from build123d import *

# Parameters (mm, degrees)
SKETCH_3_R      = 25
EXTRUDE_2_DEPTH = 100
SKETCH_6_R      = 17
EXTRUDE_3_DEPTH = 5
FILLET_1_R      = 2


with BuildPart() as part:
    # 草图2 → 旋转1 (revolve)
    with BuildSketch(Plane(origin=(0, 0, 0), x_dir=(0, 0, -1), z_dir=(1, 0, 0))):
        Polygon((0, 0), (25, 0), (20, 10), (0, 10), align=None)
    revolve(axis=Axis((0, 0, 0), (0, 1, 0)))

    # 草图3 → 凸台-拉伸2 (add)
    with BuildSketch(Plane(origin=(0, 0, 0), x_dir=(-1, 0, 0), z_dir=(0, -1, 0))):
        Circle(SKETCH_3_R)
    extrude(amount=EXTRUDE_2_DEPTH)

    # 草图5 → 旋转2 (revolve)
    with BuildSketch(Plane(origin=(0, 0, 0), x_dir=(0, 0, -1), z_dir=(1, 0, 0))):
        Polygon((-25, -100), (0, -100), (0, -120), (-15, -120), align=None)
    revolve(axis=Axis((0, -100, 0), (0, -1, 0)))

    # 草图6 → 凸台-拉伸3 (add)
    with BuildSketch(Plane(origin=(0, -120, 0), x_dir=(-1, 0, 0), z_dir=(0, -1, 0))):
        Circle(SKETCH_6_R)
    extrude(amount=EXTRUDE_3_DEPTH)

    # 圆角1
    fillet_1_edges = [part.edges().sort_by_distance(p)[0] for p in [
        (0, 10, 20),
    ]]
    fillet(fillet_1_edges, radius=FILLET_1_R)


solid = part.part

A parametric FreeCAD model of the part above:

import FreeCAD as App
import Part
import Sketcher
from FreeCAD import Vector
Q = App.Units.Quantity


def edges_at(feature, points):
    """Names of the edges that pass closest to the given points."""
    edges = feature.Shape.Edges
    near = lambda p: min(range(len(edges)), key=lambda i: edges[i].distToShape(Part.Vertex(*p))[0])
    return sorted({f"Edge{near(p) + 1}" for p in points})

doc = App.newDocument("Part")
body = doc.addObject("PartDesign::Body", "Body")

sketch1 = body.newObject("Sketcher::SketchObject", "Sketch")
sketch1.AttachmentSupport = (doc.getObject("YZ_Plane"), [""])
sketch1.MapMode = "FlatFace"
sketch1.addGeometry([
    Part.LineSegment(Vector(0, 0, 0), Vector(0, -25, 0)),
    Part.LineSegment(Vector(0, -25, 0), Vector(10, -20, 0)),
    Part.LineSegment(Vector(10, -20, 0), Vector(10, 0, 0)),
    Part.LineSegment(Vector(10, 0, 0), Vector(0, 0, 0)),
], False)
sketch1.addConstraint([
    Sketcher.Constraint("Coincident", 0, 2, 1, 1),
    Sketcher.Constraint("Coincident", 1, 2, 2, 1),
    Sketcher.Constraint("Coincident", 2, 2, 3, 1),
    Sketcher.Constraint("Coincident", 3, 2, 0, 1),
    Sketcher.Constraint("Vertical", 0),
    Sketcher.Constraint("Vertical", 2),
    Sketcher.Constraint("Horizontal", 3),
    Sketcher.Constraint("Coincident", 3, 2, -1, 1),
    Sketcher.Constraint("DistanceX", 3, 2, 3, 1, Q("10 mm")),
    Sketcher.Constraint("DistanceY", 0, 2, 0, 1, Q("25 mm")),
    Sketcher.Constraint("DistanceY", 2, 1, 2, 2, Q("20 mm")),
])
revolution = body.newObject("PartDesign::Revolution", "Revolution")
revolution.Profile = sketch1
revolution.ReferenceAxis = (sketch1, ["H_Axis"])
revolution.Angle = 360

sketch2 = body.newObject("Sketcher::SketchObject", "Sketch001")
sketch2.AttachmentSupport = (doc.getObject("XZ_Plane"), [""])
sketch2.MapMode = "FlatFace"
sketch2.addGeometry(Part.Circle(Vector(0, 0, 0), Vector(0, 0, 1), 25), False)
sketch2.addConstraint([
    Sketcher.Constraint("Coincident", 0, 3, -1, 1),
    Sketcher.Constraint("Diameter", 0, Q("50 mm")),
])
pad1 = body.newObject("PartDesign::Pad", "Pad")
pad1.Profile = sketch2
pad1.Length = 100

sketch3 = body.newObject("Sketcher::SketchObject", "Sketch002")
sketch3.AttachmentSupport = (doc.getObject("YZ_Plane"), [""])
sketch3.MapMode = "FlatFace"
sketch3.addGeometry([
    Part.LineSegment(Vector(-100, 0, 0), Vector(-100, 25, 0)),
    Part.LineSegment(Vector(-100, 25, 0), Vector(-120, 15, 0)),
    Part.LineSegment(Vector(-120, 15, 0), Vector(-120, 0, 0)),
    Part.LineSegment(Vector(-120, 0, 0), Vector(-100, 0, 0)),
], False)
sketch3.addConstraint([
    Sketcher.Constraint("Coincident", 0, 2, 1, 1),
    Sketcher.Constraint("Coincident", 1, 2, 2, 1),
    Sketcher.Constraint("Coincident", 2, 2, 3, 1),
    Sketcher.Constraint("Coincident", 3, 2, 0, 1),
    Sketcher.Constraint("Vertical", 0),
    Sketcher.Constraint("Vertical", 2),
    Sketcher.Constraint("Horizontal", 3),
    Sketcher.Constraint("PointOnObject", 2, 2, -1),
    Sketcher.Constraint("DistanceX", 3, 1, 3, 2, Q("20 mm")),
    Sketcher.Constraint("DistanceY", 0, 1, 0, 2, Q("25 mm")),
    Sketcher.Constraint("DistanceY", 2, 2, 2, 1, Q("15 mm")),
    Sketcher.Constraint("DistanceX", 0, 2, -1, 1, Q("100 mm")),
])
revolution2 = body.newObject("PartDesign::Revolution", "Revolution001")
revolution2.Profile = sketch3
revolution2.ReferenceAxis = (sketch3, ["H_Axis"])
revolution2.Angle = 360

sketch4 = body.newObject("Sketcher::SketchObject", "Sketch003")
sketch4.AttachmentSupport = (doc.getObject("XZ_Plane"), [""])
sketch4.MapMode = "FlatFace"
sketch4.AttachmentOffset = App.Placement(Vector(0, 0, 120), App.Rotation())
sketch4.addGeometry(Part.Circle(Vector(0, 0, 0), Vector(0, 0, 1), 17), False)
sketch4.addConstraint([
    Sketcher.Constraint("Coincident", 0, 3, -1, 1),
    Sketcher.Constraint("Diameter", 0, Q("34 mm")),
])
pad2 = body.newObject("PartDesign::Pad", "Pad001")
pad2.Profile = sketch4
pad2.Length = 5
doc.recompute()

fillet = body.newObject("PartDesign::Fillet", "Fillet")
fillet.Base = (pad2, edges_at(pad2, [(0, 10, 20)]))
fillet.Radius = 2

doc.recompute()
